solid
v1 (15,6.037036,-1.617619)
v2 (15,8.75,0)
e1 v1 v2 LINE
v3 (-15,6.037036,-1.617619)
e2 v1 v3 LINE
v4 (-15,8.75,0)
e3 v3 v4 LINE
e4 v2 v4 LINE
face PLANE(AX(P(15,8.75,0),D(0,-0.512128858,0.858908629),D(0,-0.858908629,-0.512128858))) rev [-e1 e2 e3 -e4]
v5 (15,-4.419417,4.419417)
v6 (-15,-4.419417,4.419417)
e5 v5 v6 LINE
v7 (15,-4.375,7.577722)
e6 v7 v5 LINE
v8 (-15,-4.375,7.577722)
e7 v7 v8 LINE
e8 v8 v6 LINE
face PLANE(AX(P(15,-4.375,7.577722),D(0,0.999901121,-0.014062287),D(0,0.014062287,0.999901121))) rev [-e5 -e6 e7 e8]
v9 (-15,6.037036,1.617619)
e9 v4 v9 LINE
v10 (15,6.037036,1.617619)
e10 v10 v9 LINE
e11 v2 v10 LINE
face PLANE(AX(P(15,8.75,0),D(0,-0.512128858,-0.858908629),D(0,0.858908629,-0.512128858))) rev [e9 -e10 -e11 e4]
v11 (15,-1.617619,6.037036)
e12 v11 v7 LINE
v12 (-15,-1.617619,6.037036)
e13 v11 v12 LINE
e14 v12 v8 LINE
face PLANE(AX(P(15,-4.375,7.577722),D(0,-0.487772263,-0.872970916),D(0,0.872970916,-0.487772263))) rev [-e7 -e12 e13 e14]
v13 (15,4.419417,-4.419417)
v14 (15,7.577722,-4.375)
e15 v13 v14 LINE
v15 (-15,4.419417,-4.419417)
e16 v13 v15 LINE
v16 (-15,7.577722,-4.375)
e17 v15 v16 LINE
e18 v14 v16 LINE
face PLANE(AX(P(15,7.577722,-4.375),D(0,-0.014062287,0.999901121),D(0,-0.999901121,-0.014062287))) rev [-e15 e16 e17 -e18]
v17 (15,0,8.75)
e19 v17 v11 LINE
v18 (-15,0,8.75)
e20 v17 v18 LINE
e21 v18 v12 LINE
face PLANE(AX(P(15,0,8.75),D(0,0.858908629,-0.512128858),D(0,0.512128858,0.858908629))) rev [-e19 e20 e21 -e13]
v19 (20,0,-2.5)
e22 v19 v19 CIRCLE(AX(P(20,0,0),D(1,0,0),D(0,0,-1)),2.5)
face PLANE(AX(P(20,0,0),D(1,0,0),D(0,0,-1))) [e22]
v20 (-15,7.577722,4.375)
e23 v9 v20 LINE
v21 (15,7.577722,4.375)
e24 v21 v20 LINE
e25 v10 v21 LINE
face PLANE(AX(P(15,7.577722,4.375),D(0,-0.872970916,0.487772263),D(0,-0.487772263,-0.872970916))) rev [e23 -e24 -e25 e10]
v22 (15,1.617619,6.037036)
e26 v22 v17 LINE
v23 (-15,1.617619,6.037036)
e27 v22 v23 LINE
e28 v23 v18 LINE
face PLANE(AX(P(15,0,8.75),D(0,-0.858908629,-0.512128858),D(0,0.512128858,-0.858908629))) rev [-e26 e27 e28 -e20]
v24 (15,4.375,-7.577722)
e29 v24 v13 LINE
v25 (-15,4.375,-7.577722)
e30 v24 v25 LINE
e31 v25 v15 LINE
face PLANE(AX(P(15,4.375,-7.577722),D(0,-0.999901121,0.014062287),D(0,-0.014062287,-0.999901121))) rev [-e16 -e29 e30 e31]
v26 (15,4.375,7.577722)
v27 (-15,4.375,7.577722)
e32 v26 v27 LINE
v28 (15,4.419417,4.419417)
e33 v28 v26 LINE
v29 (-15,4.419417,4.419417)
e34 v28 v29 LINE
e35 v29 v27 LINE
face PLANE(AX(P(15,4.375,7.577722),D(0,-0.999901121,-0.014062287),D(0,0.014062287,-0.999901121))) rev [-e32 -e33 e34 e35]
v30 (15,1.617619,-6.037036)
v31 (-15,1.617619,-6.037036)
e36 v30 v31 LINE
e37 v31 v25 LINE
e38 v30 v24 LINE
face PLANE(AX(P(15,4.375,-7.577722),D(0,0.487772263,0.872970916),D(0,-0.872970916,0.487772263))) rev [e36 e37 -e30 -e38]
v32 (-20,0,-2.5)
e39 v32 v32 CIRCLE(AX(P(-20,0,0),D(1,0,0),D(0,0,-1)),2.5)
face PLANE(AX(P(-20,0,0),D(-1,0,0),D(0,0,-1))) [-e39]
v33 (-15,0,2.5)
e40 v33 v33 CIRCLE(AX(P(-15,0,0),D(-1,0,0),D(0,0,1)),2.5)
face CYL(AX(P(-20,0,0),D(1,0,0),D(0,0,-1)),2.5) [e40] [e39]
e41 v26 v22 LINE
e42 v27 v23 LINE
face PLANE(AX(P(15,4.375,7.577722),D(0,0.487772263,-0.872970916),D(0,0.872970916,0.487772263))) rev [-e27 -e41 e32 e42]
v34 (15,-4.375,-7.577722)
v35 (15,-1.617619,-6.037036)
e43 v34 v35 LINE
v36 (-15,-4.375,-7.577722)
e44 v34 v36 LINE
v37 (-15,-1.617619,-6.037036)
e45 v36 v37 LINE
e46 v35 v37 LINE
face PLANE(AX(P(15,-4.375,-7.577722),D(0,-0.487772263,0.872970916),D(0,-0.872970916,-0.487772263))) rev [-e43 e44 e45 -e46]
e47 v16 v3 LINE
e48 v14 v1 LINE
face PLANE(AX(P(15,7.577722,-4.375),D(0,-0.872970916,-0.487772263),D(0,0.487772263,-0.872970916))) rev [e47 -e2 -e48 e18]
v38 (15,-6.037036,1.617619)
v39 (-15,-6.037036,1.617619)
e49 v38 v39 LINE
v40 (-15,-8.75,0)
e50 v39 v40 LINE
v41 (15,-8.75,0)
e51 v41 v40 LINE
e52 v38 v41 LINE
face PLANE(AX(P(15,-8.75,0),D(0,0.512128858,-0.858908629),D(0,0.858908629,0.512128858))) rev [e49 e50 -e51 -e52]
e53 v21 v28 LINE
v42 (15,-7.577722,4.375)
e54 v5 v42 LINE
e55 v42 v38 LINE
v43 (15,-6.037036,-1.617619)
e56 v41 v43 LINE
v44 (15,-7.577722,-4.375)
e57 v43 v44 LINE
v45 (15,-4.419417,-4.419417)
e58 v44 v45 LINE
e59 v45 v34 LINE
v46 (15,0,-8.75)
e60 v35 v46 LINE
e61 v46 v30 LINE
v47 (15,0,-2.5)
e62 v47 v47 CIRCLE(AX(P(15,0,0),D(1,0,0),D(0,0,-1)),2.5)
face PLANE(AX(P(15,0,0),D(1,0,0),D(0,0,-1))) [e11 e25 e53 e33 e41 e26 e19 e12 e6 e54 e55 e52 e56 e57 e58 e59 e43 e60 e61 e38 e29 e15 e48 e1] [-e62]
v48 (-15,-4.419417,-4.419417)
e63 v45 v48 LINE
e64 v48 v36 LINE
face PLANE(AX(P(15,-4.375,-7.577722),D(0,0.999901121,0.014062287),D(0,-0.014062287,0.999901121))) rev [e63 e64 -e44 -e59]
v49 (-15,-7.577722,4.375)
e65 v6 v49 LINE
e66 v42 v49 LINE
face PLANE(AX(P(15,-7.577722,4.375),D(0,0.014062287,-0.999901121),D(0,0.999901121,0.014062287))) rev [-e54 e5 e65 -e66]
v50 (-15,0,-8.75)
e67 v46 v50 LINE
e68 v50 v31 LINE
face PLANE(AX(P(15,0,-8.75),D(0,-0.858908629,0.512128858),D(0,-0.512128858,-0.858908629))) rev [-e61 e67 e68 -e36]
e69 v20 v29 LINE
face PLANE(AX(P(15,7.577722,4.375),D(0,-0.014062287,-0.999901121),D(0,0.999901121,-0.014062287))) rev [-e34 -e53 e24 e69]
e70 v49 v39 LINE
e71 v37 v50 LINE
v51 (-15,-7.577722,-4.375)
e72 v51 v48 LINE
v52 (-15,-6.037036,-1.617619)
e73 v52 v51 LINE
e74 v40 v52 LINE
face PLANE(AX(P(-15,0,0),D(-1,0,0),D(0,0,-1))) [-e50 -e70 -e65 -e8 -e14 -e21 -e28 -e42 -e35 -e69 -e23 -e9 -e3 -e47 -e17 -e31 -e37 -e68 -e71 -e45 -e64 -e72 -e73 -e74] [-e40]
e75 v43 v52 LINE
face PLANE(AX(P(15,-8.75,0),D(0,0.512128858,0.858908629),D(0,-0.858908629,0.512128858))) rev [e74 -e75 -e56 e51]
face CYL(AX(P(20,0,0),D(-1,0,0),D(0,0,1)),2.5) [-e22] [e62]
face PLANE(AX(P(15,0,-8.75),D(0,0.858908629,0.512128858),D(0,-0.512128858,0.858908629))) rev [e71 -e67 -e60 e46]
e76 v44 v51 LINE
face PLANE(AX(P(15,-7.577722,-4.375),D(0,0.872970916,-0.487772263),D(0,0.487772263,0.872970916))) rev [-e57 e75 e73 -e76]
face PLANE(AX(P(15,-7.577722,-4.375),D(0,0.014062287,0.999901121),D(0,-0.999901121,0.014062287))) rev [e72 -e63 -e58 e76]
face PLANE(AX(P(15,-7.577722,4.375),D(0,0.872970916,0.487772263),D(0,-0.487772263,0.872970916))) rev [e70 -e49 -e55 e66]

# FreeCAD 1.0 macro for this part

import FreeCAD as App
import Part
import Sketcher

doc = App.newDocument("Part")
body = doc.addObject("PartDesign::Body", "Body")

sketch1 = body.newObject("Sketcher::SketchObject", "Sketch")
sketch1.AttachmentSupport = (doc.getObject("YZ_Plane"), [""])
sketch1.MapMode = "FlatFace"
sketch1.addGeometry(Part.LineSegment(App.Vector(6.037036, -1.617619, 0), App.Vector(8.75, 0, 0)), False)
sketch1.addGeometry(Part.LineSegment(App.Vector(8.75, 0, 0), App.Vector(6.037036, 1.617619, 0)), False)
sketch1.addGeometry(Part.LineSegment(App.Vector(6.037036, 1.617619, 0), App.Vector(7.577722, 4.375, 0)), False)
sketch1.addGeometry(Part.LineSegment(App.Vector(7.577722, 4.375, 0), App.Vector(4.419417, 4.419417, 0)), False)
sketch1.addGeometry(Part.LineSegment(App.Vector(4.419417, 4.419417, 0), App.Vector(4.375, 7.577722, 0)), False)
sketch1.addGeometry(Part.LineSegment(App.Vector(4.375, 7.577722, 0), App.Vector(1.617619, 6.037036, 0)), False)
sketch1.addGeometry(Part.LineSegment(App.Vector(1.617619, 6.037036, 0), App.Vector(0, 8.75, 0)), False)
sketch1.addGeometry(Part.LineSegment(App.Vector(0, 8.75, 0), App.Vector(-1.617619, 6.037036, 0)), False)
sketch1.addGeometry(Part.LineSegment(App.Vector(-1.617619, 6.037036, 0), App.Vector(-4.375, 7.577722, 0)), False)
sketch1.addGeometry(Part.LineSegment(App.Vector(-4.375, 7.577722, 0), App.Vector(-4.419417, 4.419417, 0)), False)
sketch1.addGeometry(Part.LineSegment(App.Vector(-4.419417, 4.419417, 0), App.Vector(-7.577722, 4.375, 0)), False)
sketch1.addGeometry(Part.LineSegment(App.Vector(-7.577722, 4.375, 0), App.Vector(-6.037036, 1.617619, 0)), False)
sketch1.addGeometry(Part.LineSegment(App.Vector(-6.037036, 1.617619, 0), App.Vector(-8.75, 0, 0)), False)
sketch1.addGeometry(Part.LineSegment(App.Vector(-8.75, 0, 0), App.Vector(-6.037036, -1.617619, 0)), False)
sketch1.addGeometry(Part.LineSegment(App.Vector(-6.037036, -1.617619, 0), App.Vector(-7.577722, -4.375, 0)), False)
sketch1.addGeometry(Part.LineSegment(App.Vector(-7.577722, -4.375, 0), App.Vector(-4.419417, -4.419417, 0)), False)
sketch1.addGeometry(Part.LineSegment(App.Vector(-4.419417, -4.419417, 0), App.Vector(-4.375, -7.577722, 0)), False)
sketch1.addGeometry(Part.LineSegment(App.Vector(-4.375, -7.577722, 0), App.Vector(-1.617619, -6.037036, 0)), False)
sketch1.addGeometry(Part.LineSegment(App.Vector(-1.617619, -6.037036, 0), App.Vector(0, -8.75, 0)), False)
sketch1.addGeometry(Part.LineSegment(App.Vector(0, -8.75, 0), App.Vector(1.617619, -6.037036, 0)), False)
sketch1.addGeometry(Part.LineSegment(App.Vector(1.617619, -6.037036, 0), App.Vector(4.375, -7.577722, 0)), False)
sketch1.addGeometry(Part.LineSegment(App.Vector(4.375, -7.577722, 0), App.Vector(4.419417, -4.419417, 0)), False)
sketch1.addGeometry(Part.LineSegment(App.Vector(4.419417, -4.419417, 0), App.Vector(7.577722, -4.375, 0)), False)
sketch1.addGeometry(Part.LineSegment(App.Vector(7.577722, -4.375, 0), App.Vector(6.037036, -1.617619, 0)), False)
sketch1.addConstraint(Sketcher.Constraint("Coincident", 0, 2, 1, 1))
sketch1.addConstraint(Sketcher.Constraint("Coincident", 1, 2, 2, 1))
sketch1.addConstraint(Sketcher.Constraint("Coincident", 2, 2, 3, 1))
sketch1.addConstraint(Sketcher.Constraint("Coincident", 3, 2, 4, 1))
sketch1.addConstraint(Sketcher.Constraint("Coincident", 4, 2, 5, 1))
sketch1.addConstraint(Sketcher.Constraint("Coincident", 5, 2, 6, 1))
sketch1.addConstraint(Sketcher.Constraint("Coincident", 6, 2, 7, 1))
sketch1.addConstraint(Sketcher.Constraint("Coincident", 7, 2, 8, 1))
sketch1.addConstraint(Sketcher.Constraint("Coincident", 8, 2, 9, 1))
sketch1.addConstraint(Sketcher.Constraint("Coincident", 9, 2, 10, 1))
sketch1.addConstraint(Sketcher.Constraint("Coincident", 10, 2, 11, 1))
sketch1.addConstraint(Sketcher.Constraint("Coincident", 11, 2, 12, 1))
sketch1.addConstraint(Sketcher.Constraint("Coincident", 12, 2, 13, 1))
sketch1.addConstraint(Sketcher.Constraint("Coincident", 13, 2, 14, 1))
sketch1.addConstraint(Sketcher.Constraint("Coincident", 14, 2, 15, 1))
sketch1.addConstraint(Sketcher.Constraint("Coincident", 15, 2, 16, 1))
sketch1.addConstraint(Sketcher.Constraint("Coincident", 16, 2, 17, 1))
sketch1.addConstraint(Sketcher.Constraint("Coincident", 17, 2, 18, 1))
sketch1.addConstraint(Sketcher.Constraint("Coincident", 18, 2, 19, 1))
sketch1.addConstraint(Sketcher.Constraint("Coincident", 19, 2, 20, 1))
sketch1.addConstraint(Sketcher.Constraint("Coincident", 20, 2, 21, 1))
sketch1.addConstraint(Sketcher.Constraint("Coincident", 21, 2, 22, 1))
sketch1.addConstraint(Sketcher.Constraint("Coincident", 22, 2, 23, 1))
sketch1.addConstraint(Sketcher.Constraint("Coincident", 23, 2, 0, 1))
sketch1.addConstraint(Sketcher.Constraint("Symmetric", 0, 2, 12, 2, -1, 1))
sketch1.addConstraint(Sketcher.Constraint("Symmetric", 1, 2, 13, 2, -1, 1))
sketch1.addConstraint(Sketcher.Constraint("Symmetric", 2, 2, 14, 2, -1, 1))
sketch1.addConstraint(Sketcher.Constraint("Symmetric", 3, 2, 15, 2, -1, 1))
sketch1.addConstraint(Sketcher.Constraint("Symmetric", 4, 2, 16, 2, -1, 1))
sketch1.addConstraint(Sketcher.Constraint("Symmetric", 5, 2, 17, 2, -1, 1))
sketch1.addConstraint(Sketcher.Constraint("Symmetric", 6, 2, 18, 2, -1, 1))
sketch1.addConstraint(Sketcher.Constraint("Symmetric", 7, 2, 19, 2, -1, 1))
sketch1.addConstraint(Sketcher.Constraint("Symmetric", 8, 2, 20, 2, -1, 1))
sketch1.addConstraint(Sketcher.Constraint("Symmetric", 9, 2, 21, 2, -1, 1))
sketch1.addConstraint(Sketcher.Constraint("Symmetric", 10, 2, 22, 2, -1, 1))
sketch1.addConstraint(Sketcher.Constraint("Symmetric", 11, 2, 23, 2, -1, 1))
sketch1.addConstraint(Sketcher.Constraint("Symmetric", 5, 2, 7, 2, -2))
sketch1.addConstraint(Sketcher.Constraint("Symmetric", 4, 2, 8, 2, -2))
sketch1.addConstraint(Sketcher.Constraint("Symmetric", 3, 2, 9, 2, -2))
sketch1.addConstraint(Sketcher.Constraint("Symmetric", 2, 2, 10, 2, -2))
sketch1.addConstraint(Sketcher.Constraint("Symmetric", 1, 2, 11, 2, -2))
sketch1.addConstraint(Sketcher.Constraint("PointOnObject", 0, 2, -1))
sketch1.addConstraint(Sketcher.Constraint("PointOnObject", 6, 2, -2))
sketch1.addConstraint(Sketcher.Constraint("Perpendicular", 0, 6))
sketch1.addConstraint(Sketcher.Constraint("Perpendicular", 2, 8))
sketch1.addConstraint(Sketcher.Constraint("Perpendicular", 3, 9))
sketch1.addConstraint(Sketcher.Constraint("Equal", 1, 2))
sketch1.addConstraint(Sketcher.Constraint("Equal", 2, 3))
sketch1.addConstraint(Sketcher.Constraint("Equal", 3, 4))
sketch1.addConstraint(Sketcher.Constraint("Equal", 4, 5))
sketch1.addConstraint(Sketcher.Constraint("Equal", 5, 6))
sketch1.addConstraint(Sketcher.Constraint("DistanceX", -1, 1, 0, 2, 8.75))
sketch1.addConstraint(Sketcher.Constraint("DistanceX", 8, 2, 4, 2, 8.75))
sketch1.addConstraint(Sketcher.Constraint("DistanceY", 1, 2, 3, 2, 2.801798))
sketch1.addConstraint(Sketcher.Constraint("DistanceY", -1, 1, 1, 2, 1.617619))
pad1 = body.newObject("PartDesign::Pad", "Pad")
pad1.Profile = sketch1
pad1.Length = 15

sketch2 = body.newObject("Sketcher::SketchObject", "Sketch001")
sketch2.AttachmentSupport = (doc.getObject("YZ_Plane"), [""])
sketch2.MapMode = "FlatFace"
sketch2.AttachmentOffset = App.Placement(App.Vector(0, 0, 15), App.Rotation())
sketch2.addGeometry(Part.Circle(App.Vector(0, 0, 0), App.Vector(0, 0, 1), 2.5), False)
sketch2.addConstraint(Sketcher.Constraint("Coincident", 0, 3, -1, 1))
sketch2.addConstraint(Sketcher.Constraint("Diameter", 0, 5.0))
pad2 = body.newObject("PartDesign::Pad", "Pad001")
pad2.Profile = sketch2
pad2.Length = 5
doc.recompute()

mirrored = body.newObject("PartDesign::Mirrored", "Mirrored")
mirrored.Originals = [pad1, pad2]
mirrored.MirrorPlane = (doc.getObject("YZ_Plane"), [""])
body.Tip = mirrored

doc.recompute()
